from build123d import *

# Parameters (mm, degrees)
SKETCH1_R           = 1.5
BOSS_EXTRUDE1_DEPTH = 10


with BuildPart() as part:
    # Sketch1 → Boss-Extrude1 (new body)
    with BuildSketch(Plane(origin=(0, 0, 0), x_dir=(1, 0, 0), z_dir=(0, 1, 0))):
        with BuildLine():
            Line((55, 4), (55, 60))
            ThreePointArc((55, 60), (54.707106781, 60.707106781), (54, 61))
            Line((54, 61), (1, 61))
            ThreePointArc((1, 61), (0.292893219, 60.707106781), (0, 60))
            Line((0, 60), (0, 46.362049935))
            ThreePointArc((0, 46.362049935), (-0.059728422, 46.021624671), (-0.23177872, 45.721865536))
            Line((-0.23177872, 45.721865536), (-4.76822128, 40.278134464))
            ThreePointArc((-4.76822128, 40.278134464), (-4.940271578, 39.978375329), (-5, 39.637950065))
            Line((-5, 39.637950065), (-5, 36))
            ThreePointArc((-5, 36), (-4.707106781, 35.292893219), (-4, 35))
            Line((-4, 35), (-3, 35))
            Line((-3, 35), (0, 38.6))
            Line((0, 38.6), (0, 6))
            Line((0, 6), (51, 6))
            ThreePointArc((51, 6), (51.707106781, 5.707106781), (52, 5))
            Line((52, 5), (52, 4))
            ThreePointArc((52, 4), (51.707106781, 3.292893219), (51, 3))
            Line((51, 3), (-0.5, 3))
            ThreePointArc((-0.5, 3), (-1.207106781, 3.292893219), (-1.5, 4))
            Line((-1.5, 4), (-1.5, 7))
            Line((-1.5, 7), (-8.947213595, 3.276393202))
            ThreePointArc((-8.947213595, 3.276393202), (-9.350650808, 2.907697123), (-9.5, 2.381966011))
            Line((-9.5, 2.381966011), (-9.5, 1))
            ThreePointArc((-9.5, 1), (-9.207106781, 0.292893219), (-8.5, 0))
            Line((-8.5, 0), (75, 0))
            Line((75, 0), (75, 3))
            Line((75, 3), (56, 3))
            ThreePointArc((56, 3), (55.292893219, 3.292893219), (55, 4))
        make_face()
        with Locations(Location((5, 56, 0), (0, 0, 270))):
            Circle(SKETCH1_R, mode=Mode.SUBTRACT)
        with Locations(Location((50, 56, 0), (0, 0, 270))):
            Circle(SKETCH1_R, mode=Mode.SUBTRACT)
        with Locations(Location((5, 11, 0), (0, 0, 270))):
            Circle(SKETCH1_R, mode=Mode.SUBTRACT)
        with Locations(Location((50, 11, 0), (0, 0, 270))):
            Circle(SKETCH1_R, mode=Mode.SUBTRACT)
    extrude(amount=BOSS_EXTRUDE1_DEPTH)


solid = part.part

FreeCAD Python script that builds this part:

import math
import FreeCAD as App
import Part
import Sketcher

V = App.Vector

doc = App.newDocument("Part")
body = doc.addObject("PartDesign::Body", "Body")

# Sketch on XZ plane
sketch1 = body.newObject("Sketcher::SketchObject", "Sketch")
sketch1.AttachmentSupport = (doc.getObject("XZ_Plane"), [""])
sketch1.MapMode = "FlatFace"
sketch1.addGeometry([
    Part.LineSegment(V(55, -4, 0), V(55, -60, 0)),  # 0
    Part.ArcOfCircle(Part.Circle(V(54, -60, 0), V(0, 0, 1), 1), math.radians(-90), math.radians(0)),  # 1
    Part.LineSegment(V(54, -61, 0), V(1, -61, 0)),  # 2
    Part.ArcOfCircle(Part.Circle(V(1, -60, 0), V(0, 0, 1), 1), math.radians(-180), math.radians(-90)),  # 3
    Part.LineSegment(V(0, -60, 0), V(0, -46.36205, 0)),  # 4
    Part.ArcOfCircle(Part.Circle(V(-1, -46.36205, 0), V(0, 0, 1), 1), math.radians(0), math.radians(39.805571)),  # 5
    Part.LineSegment(V(-0.231779, -45.721866, 0), V(-4.768221, -40.278134, 0)),  # 6
    Part.ArcOfCircle(Part.Circle(V(-4, -39.63795, 0), V(0, 0, 1), 1), math.radians(180), math.radians(219.805571)),  # 7
    Part.LineSegment(V(-5, -39.63795, 0), V(-5, -36, 0)),  # 8
    Part.ArcOfCircle(Part.Circle(V(-4, -36, 0), V(0, 0, 1), 1), math.radians(90), math.radians(180)),  # 9
    Part.LineSegment(V(-4, -35, 0), V(-3, -35, 0)),  # 10
    Part.LineSegment(V(-3, -35, 0), V(0, -38.6, 0)),  # 11
    Part.LineSegment(V(0, -38.6, 0), V(0, -6, 0)),  # 12
    Part.LineSegment(V(0, -6, 0), V(51, -6, 0)),  # 13
    Part.ArcOfCircle(Part.Circle(V(51, -5, 0), V(0, 0, 1), 1), math.radians(-90), math.radians(0)),  # 14
    Part.LineSegment(V(52, -5, 0), V(52, -4, 0)),  # 15
    Part.ArcOfCircle(Part.Circle(V(51, -4, 0), V(0, 0, 1), 1), math.radians(0), math.radians(90)),  # 16
    Part.LineSegment(V(51, -3, 0), V(-0.5, -3, 0)),  # 17
    Part.ArcOfCircle(Part.Circle(V(-0.5, -4, 0), V(0, 0, 1), 1), math.radians(90), math.radians(180)),  # 18
    Part.LineSegment(V(-1.5, -4, 0), V(-1.5, -7, 0)),  # 19
    Part.LineSegment(V(-1.5, -7, 0), V(-8.947214, -3.276393, 0)),  # 20
    Part.ArcOfCircle(Part.Circle(V(-8.5, -2.381966, 0), V(0, 0, 1), 1), math.radians(-180), math.radians(-116.565051)),  # 21
    Part.LineSegment(V(-9.5, -2.381966, 0), V(-9.5, -1, 0)),  # 22
    Part.ArcOfCircle(Part.Circle(V(-8.5, -1, 0), V(0, 0, 1), 1), math.radians(90), math.radians(180)),  # 23
    Part.LineSegment(V(-8.5, 0, 0), V(75, 0, 0)),  # 24
    Part.LineSegment(V(75, 0, 0), V(75, -3, 0)),  # 25
    Part.LineSegment(V(75, -3, 0), V(56, -3, 0)),  # 26
    Part.ArcOfCircle(Part.Circle(V(56, -4, 0), V(0, 0, 1), 1), math.radians(90), math.radians(180)),  # 27
    Part.Circle(V(5, -11, 0), V(0, 0, 1), 1.5),  # 28
    Part.Circle(V(50, -11, 0), V(0, 0, 1), 1.5),  # 29
    Part.Circle(V(5, -56, 0), V(0, 0, 1), 1.5),  # 30
    Part.Circle(V(50, -56, 0), V(0, 0, 1), 1.5),  # 31
], False)
sketch1.addConstraint([
    Sketcher.Constraint("Tangent", 0, 2, 1, 2),
    Sketcher.Constraint("Tangent", 1, 1, 2, 1),
    Sketcher.Constraint("Tangent", 2, 2, 3, 2),
    Sketcher.Constraint("Tangent", 3, 1, 4, 1),
    Sketcher.Constraint("Tangent", 4, 2, 5, 1),
    Sketcher.Constraint("Tangent", 5, 2, 6, 1),
    Sketcher.Constraint("Tangent", 6, 2, 7, 2),
    Sketcher.Constraint("Tangent", 7, 1, 8, 1),
    Sketcher.Constraint("Tangent", 8, 2, 9, 2),
    Sketcher.Constraint("Tangent", 9, 1, 10, 1),
    Sketcher.Constraint("Coincident", 10, 2, 11, 1),
    Sketcher.Constraint("Coincident", 11, 2, 12, 1),
    Sketcher.Constraint("Coincident", 12, 2, 13, 1),
    Sketcher.Constraint("Tangent", 13, 2, 14, 1),
    Sketcher.Constraint("Tangent", 14, 2, 15, 1),
    Sketcher.Constraint("Tangent", 15, 2, 16, 1),
    Sketcher.Constraint("Tangent", 16, 2, 17, 1),
    Sketcher.Constraint("Tangent", 17, 2, 18, 1),
    Sketcher.Constraint("Tangent", 18, 2, 19, 1),
    Sketcher.Constraint("Coincident", 19, 2, 20, 1),
    Sketcher.Constraint("Tangent", 20, 2, 21, 2),
    Sketcher.Constraint("Tangent", 21, 1, 22, 1),
    Sketcher.Constraint("Tangent", 22, 2, 23, 2),
    Sketcher.Constraint("Tangent", 23, 1, 24, 1),
    Sketcher.Constraint("Coincident", 24, 2, 25, 1),
    Sketcher.Constraint("Coincident", 25, 2, 26, 1),
    Sketcher.Constraint("Tangent", 26, 2, 27, 1),
    Sketcher.Constraint("Tangent", 27, 2, 0, 1),
    Sketcher.Constraint("Vertical", 0),
    Sketcher.Constraint("Horizontal", 2),
    Sketcher.Constraint("Vertical", 4),
    Sketcher.Constraint("Vertical", 8),
    Sketcher.Constraint("Horizontal", 10),
    Sketcher.Constraint("Vertical", 12),
    Sketcher.Constraint("Horizontal", 13),
    Sketcher.Constraint("Vertical", 15),
    Sketcher.Constraint("Horizontal", 17),
    Sketcher.Constraint("Vertical", 19),
    Sketcher.Constraint("Vertical", 22),
    Sketcher.Constraint("Horizontal", 24),
    Sketcher.Constraint("Vertical", 25),
    Sketcher.Constraint("Horizontal", 26),
    Sketcher.Constraint("Equal", 1, 3),
    Sketcher.Constraint("Equal", 3, 5),
    Sketcher.Constraint("Equal", 5, 7),
    Sketcher.Constraint("Equal", 7, 9),
    Sketcher.Constraint("Equal", 9, 14),
    Sketcher.Constraint("Equal", 14, 16),
    Sketcher.Constraint("Equal", 16, 18),
    Sketcher.Constraint("Equal", 18, 21),
    Sketcher.Constraint("Equal", 21, 23),
    Sketcher.Constraint("Equal", 23, 27),
    Sketcher.Constraint("Equal", 28, 29),
    Sketcher.Constraint("Equal", 29, 30),
    Sketcher.Constraint("Equal", 30, 31),
    Sketcher.Constraint("PointOnObject", 3, 1, -2),
    Sketcher.Constraint("PointOnObject", 11, 2, -2),
    Sketcher.Constraint("PointOnObject", 23, 1, -1),
    Sketcher.Constraint("Parallel", 6, 11),
    Sketcher.Constraint("Horizontal", 18, 3, 27, 3),
    Sketcher.Constraint("Horizontal", 28, 3, 29, 3),
    Sketcher.Constraint("Horizontal", 30, 3, 31, 3),
    Sketcher.Constraint("Vertical", 28, 3, 30, 3),
    Sketcher.Constraint("Vertical", 29, 3, 31, 3),
    Sketcher.Constraint("Equal", 10, 15),
    Sketcher.Constraint("Equal", 19, 25),
    Sketcher.Constraint("Diameter", 28, 3.0),
    Sketcher.Constraint("Radius", 1, 1.0),
    Sketcher.Constraint("DistanceX", 2, 2, 2, 1, 53.0),
    Sketcher.Constraint("DistanceX", 10, 1, 10, 2, 1.0),
    Sketcher.Constraint("DistanceX", 13, 1, 13, 2, 51.0),
    Sketcher.Constraint("DistanceX", 26, 2, 26, 1, 19.0),
    Sketcher.Constraint("DistanceY", 0, 2, 0, 1, 56.0),
    Sketcher.Constraint("DistanceY", 19, 2, 19, 1, 3.0),
    Sketcher.Constraint("DistanceX", 17, 2, 17, 1, 51.5),
    Sketcher.Constraint("DistanceX", 24, 1, 24, 2, 83.5),
    Sketcher.Constraint("DistanceY", 12, 1, 12, 2, 32.6),
    Sketcher.Constraint("DistanceX", 7, 3, -1, 1, 4.0),
    Sketcher.Constraint("DistanceY", 9, 3, -1, 1, 36.0),
    Sketcher.Constraint("DistanceX", -1, 1, 28, 3, 5.0),
    Sketcher.Constraint("DistanceY", 28, 3, -1, 1, 11.0),
    Sketcher.Constraint("DistanceX", -1, 1, 29, 3, 50.0),
    Sketcher.Constraint("DistanceY", 30, 3, -1, 1, 56.0),
    Sketcher.Constraint("DistanceY", 4, 1, 4, 2, 13.63795),
    Sketcher.Constraint("DistanceY", 22, 1, 22, 2, 1.381966),
])
pad1 = body.newObject("PartDesign::Pad", "Pad")
pad1.Profile = sketch1
pad1.Length = 10
pad1.Reversed = True

doc.recompute()
